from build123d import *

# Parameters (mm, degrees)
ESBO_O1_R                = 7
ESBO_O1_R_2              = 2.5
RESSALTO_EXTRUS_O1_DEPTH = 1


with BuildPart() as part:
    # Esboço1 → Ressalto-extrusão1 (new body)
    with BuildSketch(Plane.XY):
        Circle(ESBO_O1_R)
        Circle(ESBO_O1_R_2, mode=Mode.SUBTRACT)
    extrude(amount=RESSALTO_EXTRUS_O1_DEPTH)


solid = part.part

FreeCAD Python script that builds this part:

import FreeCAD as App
import Part
import Sketcher
from FreeCAD import Vector
Q = App.Units.Quantity

doc = App.newDocument("Part")
params = doc.addObject("Spreadsheet::Sheet", "Params")
for row, (alias, value) in enumerate([
    ("sketch1_diameter", "14 mm"),
    ("sketch1_diameter2", "5 mm"),
    ("pad1_length", "1 mm"),
], start=1):
    params.set(f"A{row}", alias)
    params.set(f"B{row}", "=" + value)
    params.setAlias(f"B{row}", alias)

body = doc.addObject("PartDesign::Body", "Body")

# Sketch on XY plane
sketch1 = body.newObject("Sketcher::SketchObject", "Sketch")
sketch1.AttachmentSupport = (doc.getObject("XY_Plane"), [""])
sketch1.MapMode = "FlatFace"
sketch1.addGeometry([
    Part.Circle(Vector(0, 0, 0), Vector(0, 0, 1), 7),
    Part.Circle(Vector(0, 0, 0), Vector(0, 0, 1), 2.5),
], False)
sketch1.addConstraint([
    Sketcher.Constraint("Coincident", 0, 3, -1, 1),
    Sketcher.Constraint("Coincident", 1, 3, -1, 1),
    Sketcher.Constraint("Diameter", 0, Q("14 mm")),
    Sketcher.Constraint("Diameter", 1, Q("5 mm")),
])
sketch1.setExpression("Constraints[2]", "Params.sketch1_diameter")
sketch1.setExpression("Constraints[3]", "Params.sketch1_diameter2")
pad1 = body.newObject("PartDesign::Pad", "Pad")
pad1.Profile = sketch1
pad1.setExpression("Length", "Params.pad1_length")

doc.recompute()
